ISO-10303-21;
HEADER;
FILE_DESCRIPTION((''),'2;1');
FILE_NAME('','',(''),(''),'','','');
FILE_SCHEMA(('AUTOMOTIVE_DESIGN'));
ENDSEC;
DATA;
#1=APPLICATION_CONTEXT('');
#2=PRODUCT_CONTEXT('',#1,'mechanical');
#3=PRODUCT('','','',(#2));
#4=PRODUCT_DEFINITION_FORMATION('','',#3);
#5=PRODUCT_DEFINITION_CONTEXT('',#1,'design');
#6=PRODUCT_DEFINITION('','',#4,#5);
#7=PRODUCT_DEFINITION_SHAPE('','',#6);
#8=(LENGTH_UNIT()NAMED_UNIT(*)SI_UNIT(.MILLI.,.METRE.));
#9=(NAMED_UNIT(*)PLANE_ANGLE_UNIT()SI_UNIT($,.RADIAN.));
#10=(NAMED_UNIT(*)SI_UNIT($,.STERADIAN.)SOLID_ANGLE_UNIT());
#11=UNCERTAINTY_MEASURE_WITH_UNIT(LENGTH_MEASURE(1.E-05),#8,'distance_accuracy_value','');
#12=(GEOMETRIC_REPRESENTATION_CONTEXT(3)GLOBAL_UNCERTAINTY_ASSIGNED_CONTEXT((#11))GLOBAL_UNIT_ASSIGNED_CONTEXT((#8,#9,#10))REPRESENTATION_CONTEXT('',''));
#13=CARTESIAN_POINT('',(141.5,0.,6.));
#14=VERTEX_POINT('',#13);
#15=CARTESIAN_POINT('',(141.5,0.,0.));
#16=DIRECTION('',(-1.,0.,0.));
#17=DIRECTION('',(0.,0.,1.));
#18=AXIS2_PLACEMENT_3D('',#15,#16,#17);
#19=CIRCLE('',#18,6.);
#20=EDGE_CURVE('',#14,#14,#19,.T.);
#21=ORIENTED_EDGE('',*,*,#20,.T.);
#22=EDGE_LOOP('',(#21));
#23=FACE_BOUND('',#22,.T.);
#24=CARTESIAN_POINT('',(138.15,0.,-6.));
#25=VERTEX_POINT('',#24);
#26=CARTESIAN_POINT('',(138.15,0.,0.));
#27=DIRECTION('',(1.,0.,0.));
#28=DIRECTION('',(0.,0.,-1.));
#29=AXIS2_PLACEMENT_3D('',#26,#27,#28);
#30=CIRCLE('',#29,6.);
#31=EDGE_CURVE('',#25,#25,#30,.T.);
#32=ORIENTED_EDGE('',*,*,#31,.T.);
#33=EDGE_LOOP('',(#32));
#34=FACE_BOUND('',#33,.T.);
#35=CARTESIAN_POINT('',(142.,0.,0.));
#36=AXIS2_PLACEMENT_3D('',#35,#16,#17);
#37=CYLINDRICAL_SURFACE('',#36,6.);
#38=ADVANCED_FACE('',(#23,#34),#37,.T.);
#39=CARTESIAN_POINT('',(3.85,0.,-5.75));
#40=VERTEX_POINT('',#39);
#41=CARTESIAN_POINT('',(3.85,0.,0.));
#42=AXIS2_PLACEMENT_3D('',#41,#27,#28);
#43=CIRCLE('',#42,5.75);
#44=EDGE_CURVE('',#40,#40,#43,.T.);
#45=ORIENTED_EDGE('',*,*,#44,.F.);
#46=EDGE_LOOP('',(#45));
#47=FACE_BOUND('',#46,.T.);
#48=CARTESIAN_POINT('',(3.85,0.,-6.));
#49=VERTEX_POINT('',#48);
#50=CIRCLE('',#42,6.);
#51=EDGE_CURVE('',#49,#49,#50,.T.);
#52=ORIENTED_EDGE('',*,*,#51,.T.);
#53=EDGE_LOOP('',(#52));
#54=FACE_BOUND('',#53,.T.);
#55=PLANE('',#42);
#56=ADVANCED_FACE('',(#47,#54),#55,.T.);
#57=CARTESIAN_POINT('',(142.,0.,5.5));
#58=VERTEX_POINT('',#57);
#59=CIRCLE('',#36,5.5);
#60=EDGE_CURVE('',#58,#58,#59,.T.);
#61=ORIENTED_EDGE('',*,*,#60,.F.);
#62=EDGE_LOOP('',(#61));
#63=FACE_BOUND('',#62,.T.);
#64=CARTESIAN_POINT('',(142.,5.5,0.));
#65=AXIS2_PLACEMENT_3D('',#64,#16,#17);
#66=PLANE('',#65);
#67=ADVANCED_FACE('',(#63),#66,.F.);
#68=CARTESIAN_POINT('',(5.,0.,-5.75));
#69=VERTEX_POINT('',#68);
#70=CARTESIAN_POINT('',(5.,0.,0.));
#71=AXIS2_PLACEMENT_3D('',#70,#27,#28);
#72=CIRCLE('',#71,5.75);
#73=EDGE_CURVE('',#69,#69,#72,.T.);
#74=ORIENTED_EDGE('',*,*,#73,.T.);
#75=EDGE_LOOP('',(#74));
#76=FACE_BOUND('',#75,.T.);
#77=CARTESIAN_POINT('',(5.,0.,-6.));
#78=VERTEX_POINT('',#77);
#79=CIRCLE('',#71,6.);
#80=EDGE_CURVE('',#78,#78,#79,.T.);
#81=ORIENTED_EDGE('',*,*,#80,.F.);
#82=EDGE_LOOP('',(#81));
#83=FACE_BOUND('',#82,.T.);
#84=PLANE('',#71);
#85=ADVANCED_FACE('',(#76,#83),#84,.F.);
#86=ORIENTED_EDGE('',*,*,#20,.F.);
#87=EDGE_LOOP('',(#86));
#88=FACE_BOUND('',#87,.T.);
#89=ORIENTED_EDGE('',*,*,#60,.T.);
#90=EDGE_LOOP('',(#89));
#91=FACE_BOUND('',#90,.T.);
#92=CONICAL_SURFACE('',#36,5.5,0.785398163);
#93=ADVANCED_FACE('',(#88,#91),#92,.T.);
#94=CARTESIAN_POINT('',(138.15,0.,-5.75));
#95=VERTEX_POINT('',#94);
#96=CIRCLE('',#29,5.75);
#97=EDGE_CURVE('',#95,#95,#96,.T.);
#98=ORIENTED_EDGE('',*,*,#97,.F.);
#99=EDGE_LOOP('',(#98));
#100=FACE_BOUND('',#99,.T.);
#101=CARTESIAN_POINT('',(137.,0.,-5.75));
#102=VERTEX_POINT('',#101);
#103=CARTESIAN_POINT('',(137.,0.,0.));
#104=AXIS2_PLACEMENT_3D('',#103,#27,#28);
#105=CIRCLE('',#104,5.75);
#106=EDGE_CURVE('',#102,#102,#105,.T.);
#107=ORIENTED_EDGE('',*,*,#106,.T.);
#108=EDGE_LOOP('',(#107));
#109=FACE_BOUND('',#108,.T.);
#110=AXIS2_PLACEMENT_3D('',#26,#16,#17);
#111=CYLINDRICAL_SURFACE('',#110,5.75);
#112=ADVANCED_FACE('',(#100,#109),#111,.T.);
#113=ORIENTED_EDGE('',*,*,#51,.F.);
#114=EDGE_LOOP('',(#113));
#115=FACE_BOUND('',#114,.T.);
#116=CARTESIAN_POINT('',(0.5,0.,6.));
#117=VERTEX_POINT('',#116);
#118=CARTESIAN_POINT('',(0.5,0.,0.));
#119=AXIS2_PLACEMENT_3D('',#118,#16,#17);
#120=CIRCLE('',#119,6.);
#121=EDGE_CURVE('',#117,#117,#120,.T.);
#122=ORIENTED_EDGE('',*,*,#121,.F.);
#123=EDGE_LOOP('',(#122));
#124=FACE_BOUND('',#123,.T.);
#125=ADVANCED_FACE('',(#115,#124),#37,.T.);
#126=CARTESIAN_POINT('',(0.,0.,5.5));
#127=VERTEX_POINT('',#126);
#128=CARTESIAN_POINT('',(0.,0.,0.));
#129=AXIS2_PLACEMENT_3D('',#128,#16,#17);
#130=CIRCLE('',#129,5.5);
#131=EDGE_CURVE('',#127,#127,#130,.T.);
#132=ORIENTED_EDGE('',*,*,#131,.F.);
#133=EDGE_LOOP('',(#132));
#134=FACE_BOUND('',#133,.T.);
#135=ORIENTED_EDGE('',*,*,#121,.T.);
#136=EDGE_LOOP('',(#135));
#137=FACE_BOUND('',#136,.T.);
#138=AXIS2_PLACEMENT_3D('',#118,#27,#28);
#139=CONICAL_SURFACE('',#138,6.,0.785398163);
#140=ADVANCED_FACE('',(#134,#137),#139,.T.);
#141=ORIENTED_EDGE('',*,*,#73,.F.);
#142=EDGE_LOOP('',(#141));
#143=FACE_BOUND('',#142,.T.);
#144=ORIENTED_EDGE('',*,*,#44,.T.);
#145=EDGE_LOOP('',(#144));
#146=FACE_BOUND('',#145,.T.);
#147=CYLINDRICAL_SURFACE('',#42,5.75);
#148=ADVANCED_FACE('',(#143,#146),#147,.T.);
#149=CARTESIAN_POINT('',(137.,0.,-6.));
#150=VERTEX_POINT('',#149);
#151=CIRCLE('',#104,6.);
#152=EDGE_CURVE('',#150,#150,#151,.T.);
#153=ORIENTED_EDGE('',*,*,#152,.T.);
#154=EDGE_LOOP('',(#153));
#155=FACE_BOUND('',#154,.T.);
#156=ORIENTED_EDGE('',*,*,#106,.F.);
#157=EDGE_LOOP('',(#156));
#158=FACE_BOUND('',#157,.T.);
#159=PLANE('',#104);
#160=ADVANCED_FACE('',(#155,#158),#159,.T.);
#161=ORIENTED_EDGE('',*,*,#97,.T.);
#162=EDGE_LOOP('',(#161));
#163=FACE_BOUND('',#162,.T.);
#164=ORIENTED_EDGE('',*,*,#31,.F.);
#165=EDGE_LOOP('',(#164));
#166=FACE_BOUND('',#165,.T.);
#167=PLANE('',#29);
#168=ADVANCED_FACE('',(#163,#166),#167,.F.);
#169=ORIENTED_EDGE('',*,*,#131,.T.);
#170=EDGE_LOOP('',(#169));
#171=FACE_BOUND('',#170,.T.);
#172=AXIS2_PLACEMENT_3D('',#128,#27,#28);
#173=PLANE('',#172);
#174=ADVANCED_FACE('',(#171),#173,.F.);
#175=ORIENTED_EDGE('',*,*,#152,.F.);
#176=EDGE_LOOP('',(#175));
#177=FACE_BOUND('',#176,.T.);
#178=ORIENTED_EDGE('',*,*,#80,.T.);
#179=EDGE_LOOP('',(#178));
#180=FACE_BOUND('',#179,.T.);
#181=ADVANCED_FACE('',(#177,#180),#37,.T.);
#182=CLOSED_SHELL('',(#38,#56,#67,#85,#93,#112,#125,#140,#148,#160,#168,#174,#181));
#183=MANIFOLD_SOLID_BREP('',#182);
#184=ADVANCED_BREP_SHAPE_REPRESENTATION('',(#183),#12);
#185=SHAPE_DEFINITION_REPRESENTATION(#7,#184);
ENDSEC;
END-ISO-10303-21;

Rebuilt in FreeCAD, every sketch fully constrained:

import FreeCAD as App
import Part
import Sketcher
Q = App.Units.Quantity

doc = App.newDocument("Part")
body = doc.addObject("PartDesign::Body", "Body")

# Sketch on XY plane
sketch1 = doc.addObject("Sketcher::SketchObject", "Sketch")
body.addObject(sketch1)
sketch1.AttachmentSupport = (doc.XY_Plane, [""])
sketch1.MapMode = "FlatFace"
sketch1.addGeometry(Part.LineSegment(App.Vector(0, 5.5, 0), App.Vector(0, 0, 0)), False)
sketch1.addGeometry(Part.LineSegment(App.Vector(0, 0, 0), App.Vector(142, 0, 0)), False)
sketch1.addGeometry(Part.LineSegment(App.Vector(142, 0, 0), App.Vector(142, 5.5, 0)), False)
sketch1.addGeometry(Part.LineSegment(App.Vector(142, 5.5, 0), App.Vector(141.5, 6, 0)), False)
sketch1.addGeometry(Part.LineSegment(App.Vector(141.5, 6, 0), App.Vector(0.5, 6, 0)), False)
sketch1.addGeometry(Part.LineSegment(App.Vector(0.5, 6, 0), App.Vector(0, 5.5, 0)), False)
sketch1.addConstraint(Sketcher.Constraint("Coincident", 0, 2, 1, 1))
sketch1.addConstraint(Sketcher.Constraint("Coincident", 1, 2, 2, 1))
sketch1.addConstraint(Sketcher.Constraint("Coincident", 2, 2, 3, 1))
sketch1.addConstraint(Sketcher.Constraint("Coincident", 3, 2, 4, 1))
sketch1.addConstraint(Sketcher.Constraint("Coincident", 4, 2, 5, 1))
sketch1.addConstraint(Sketcher.Constraint("Coincident", 5, 2, 0, 1))
sketch1.addConstraint(Sketcher.Constraint("Vertical", 0))
sketch1.addConstraint(Sketcher.Constraint("Horizontal", 1))
sketch1.addConstraint(Sketcher.Constraint("Vertical", 2))
sketch1.addConstraint(Sketcher.Constraint("Horizontal", 4))
sketch1.addConstraint(Sketcher.Constraint("Coincident", 0, 2, -1, 1))
sketch1.addConstraint(Sketcher.Constraint("Perpendicular", 3, 5))
sketch1.addConstraint(Sketcher.Constraint("Horizontal", 2, 2, 5, 2))
sketch1.addConstraint(Sketcher.Constraint("Equal", 3, 5))
sketch1.addConstraint(Sketcher.Constraint("DistanceX", 1, 1, 1, 2, Q("142 mm")))
sketch1.addConstraint(Sketcher.Constraint("DistanceX", 4, 2, 4, 1, Q("141 mm")))
sketch1.addConstraint(Sketcher.Constraint("DistanceY", 0, 2, 0, 1, Q("5.5 mm")))
revolution = doc.addObject("PartDesign::Revolution", "Revolution")
body.addObject(revolution)
revolution.Profile = sketch1
revolution.ReferenceAxis = (sketch1, ["H_Axis"])
revolution.Angle = 360

# Sketch on YZ plane
sketch2 = doc.addObject("Sketcher::SketchObject", "Sketch001")
body.addObject(sketch2)
sketch2.AttachmentSupport = (doc.YZ_Plane, [""])
sketch2.MapMode = "FlatFace"
sketch2.AttachmentOffset = App.Placement(App.Vector(0, 0, 5), App.Rotation())
sketch2.addGeometry(Part.Circle(App.Vector(0, 0, 0), App.Vector(0, 0, 1), 12), False)
sketch2.addGeometry(Part.Circle(App.Vector(0, 0, 0), App.Vector(0, 0, 1), 5.75), False)
sketch2.addConstraint(Sketcher.Constraint("Coincident", 0, 3, -1, 1))
sketch2.addConstraint(Sketcher.Constraint("Coincident", 1, 3, -1, 1))
sketch2.addConstraint(Sketcher.Constraint("Diameter", 0, Q("24 mm")))
sketch2.addConstraint(Sketcher.Constraint("Diameter", 1, Q("11.5 mm")))
pocket1 = doc.addObject("PartDesign::Pocket", "Pocket")
body.addObject(pocket1)
pocket1.Profile = sketch2
pocket1.Length = 1.15

# Sketch on YZ plane
sketch3 = doc.addObject("Sketcher::SketchObject", "Sketch002")
body.addObject(sketch3)
sketch3.AttachmentSupport = (doc.YZ_Plane, [""])
sketch3.MapMode = "FlatFace"
sketch3.AttachmentOffset = App.Placement(App.Vector(0, 0, 137), App.Rotation())
sketch3.addGeometry(Part.Circle(App.Vector(0, 0, 0), App.Vector(0, 0, 1), 12), False)
sketch3.addGeometry(Part.Circle(App.Vector(0, 0, 0), App.Vector(0, 0, 1), 5.75), False)
sketch3.addConstraint(Sketcher.Constraint("Coincident", 0, 3, -1, 1))
sketch3.addConstraint(Sketcher.Constraint("Coincident", 1, 3, -1, 1))
sketch3.addConstraint(Sketcher.Constraint("Diameter", 0, Q("24 mm")))
sketch3.addConstraint(Sketcher.Constraint("Diameter", 1, Q("11.5 mm")))
pocket2 = doc.addObject("PartDesign::Pocket", "Pocket001")
body.addObject(pocket2)
pocket2.Profile = sketch3
pocket2.Length = 1.15
pocket2.Reversed = True

doc.recompute()
